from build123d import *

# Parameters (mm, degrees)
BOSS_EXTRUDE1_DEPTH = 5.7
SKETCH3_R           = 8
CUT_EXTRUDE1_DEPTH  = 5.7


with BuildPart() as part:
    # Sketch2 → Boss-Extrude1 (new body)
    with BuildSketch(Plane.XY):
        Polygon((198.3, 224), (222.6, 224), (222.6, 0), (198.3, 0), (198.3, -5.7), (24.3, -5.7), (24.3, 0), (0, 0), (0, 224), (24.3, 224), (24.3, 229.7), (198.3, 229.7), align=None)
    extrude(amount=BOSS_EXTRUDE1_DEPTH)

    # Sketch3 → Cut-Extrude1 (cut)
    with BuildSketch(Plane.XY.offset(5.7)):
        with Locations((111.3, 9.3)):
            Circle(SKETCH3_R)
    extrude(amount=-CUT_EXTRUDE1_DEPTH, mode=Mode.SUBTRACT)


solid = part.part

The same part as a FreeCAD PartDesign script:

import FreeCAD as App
import Part
import Sketcher
Q = App.Units.Quantity

doc = App.newDocument("Part")
body = doc.addObject("PartDesign::Body", "Body")

# Sketch on XY plane
sketch1 = doc.addObject("Sketcher::SketchObject", "Sketch")
body.addObject(sketch1)
sketch1.AttachmentSupport = (doc.XY_Plane, [""])
sketch1.MapMode = "FlatFace"
sketch1.addGeometry([
    Part.LineSegment(App.Vector(223, 224, 0), App.Vector(198, 224, 0)),  # 0
    Part.LineSegment(App.Vector(198, 224, 0), App.Vector(198, 230, 0)),  # 1
    Part.LineSegment(App.Vector(198, 230, 0), App.Vector(24, 230, 0)),  # 2
    Part.LineSegment(App.Vector(24, 230, 0), App.Vector(24, 224, 0)),  # 3
    Part.LineSegment(App.Vector(24, 224, 0), App.Vector(0, 224, 0)),  # 4
    Part.LineSegment(App.Vector(0, 224, 0), App.Vector(0, 0, 0)),  # 5
    Part.LineSegment(App.Vector(0, 0, 0), App.Vector(24, 0, 0)),  # 6
    Part.LineSegment(App.Vector(24, 0, 0), App.Vector(24, -6, 0)),  # 7
    Part.LineSegment(App.Vector(24, -6, 0), App.Vector(198, -6, 0)),  # 8
    Part.LineSegment(App.Vector(198, -6, 0), App.Vector(198, 0, 0)),  # 9
    Part.LineSegment(App.Vector(198, 0, 0), App.Vector(223, 0, 0)),  # 10
    Part.LineSegment(App.Vector(223, 0, 0), App.Vector(223, 224, 0)),  # 11
], False)
sketch1.addConstraint([
    Sketcher.Constraint("Coincident", 0, 2, 1, 1),
    Sketcher.Constraint("Coincident", 1, 2, 2, 1),
    Sketcher.Constraint("Coincident", 2, 2, 3, 1),
    Sketcher.Constraint("Coincident", 3, 2, 4, 1),
    Sketcher.Constraint("Coincident", 4, 2, 5, 1),
    Sketcher.Constraint("Coincident", 5, 2, 6, 1),
    Sketcher.Constraint("Coincident", 6, 2, 7, 1),
    Sketcher.Constraint("Coincident", 7, 2, 8, 1),
    Sketcher.Constraint("Coincident", 8, 2, 9, 1),
    Sketcher.Constraint("Coincident", 9, 2, 10, 1),
    Sketcher.Constraint("Coincident", 10, 2, 11, 1),
    Sketcher.Constraint("Coincident", 11, 2, 0, 1),
    Sketcher.Constraint("Horizontal", 0),
    Sketcher.Constraint("Vertical", 1),
    Sketcher.Constraint("Horizontal", 2),
    Sketcher.Constraint("Vertical", 3),
    Sketcher.Constraint("Horizontal", 4),
    Sketcher.Constraint("Vertical", 5),
    Sketcher.Constraint("Horizontal", 6),
    Sketcher.Constraint("Vertical", 7),
    Sketcher.Constraint("Horizontal", 8),
    Sketcher.Constraint("Vertical", 9),
    Sketcher.Constraint("Horizontal", 10),
    Sketcher.Constraint("Vertical", 11),
    Sketcher.Constraint("Coincident", 5, 2, -1, 1),
    Sketcher.Constraint("PointOnObject", 9, 2, -1),
    Sketcher.Constraint("Horizontal", 0, 2, 3, 2),
    Sketcher.Constraint("Vertical", 3, 2, 6, 2),
    Sketcher.Constraint("Vertical", 1, 2, 8, 2),
    Sketcher.Constraint("Equal", 0, 4),
    Sketcher.Constraint("Equal", 3, 7),
    Sketcher.Constraint("DistanceX", 2, 2, 2, 1, Q("174 mm")),
    Sketcher.Constraint("DistanceY", 5, 2, 5, 1, Q("224 mm")),
    Sketcher.Constraint("DistanceX", 0, 2, 0, 1, Q("24.3 mm")),
    Sketcher.Constraint("DistanceY", 1, 1, 1, 2, Q("5.7 mm")),
])
pad1 = doc.addObject("PartDesign::Pad", "Pad")
body.addObject(pad1)
pad1.Profile = sketch1
pad1.Length = 5.7

# Sketch on XY plane
sketch2 = doc.addObject("Sketcher::SketchObject", "Sketch001")
body.addObject(sketch2)
sketch2.AttachmentSupport = (doc.XY_Plane, [""])
sketch2.MapMode = "FlatFace"
sketch2.AttachmentOffset = App.Placement(App.Vector(0, 0, 5.7), App.Rotation())
sketch2.addGeometry(Part.Circle(App.Vector(111, 9, 0), App.Vector(0, 0, 1), 8), False)
sketch2.addConstraint([
    Sketcher.Constraint("Diameter", 0, Q("16 mm")),
    Sketcher.Constraint("DistanceX", -1, 1, 0, 3, Q("111.3 mm")),
    Sketcher.Constraint("DistanceY", -1, 1, 0, 3, Q("9.3 mm")),
])
pocket1 = doc.addObject("PartDesign::Pocket", "Pocket")
body.addObject(pocket1)
pocket1.Profile = sketch2
pocket1.Length = 5.7

doc.recompute()
